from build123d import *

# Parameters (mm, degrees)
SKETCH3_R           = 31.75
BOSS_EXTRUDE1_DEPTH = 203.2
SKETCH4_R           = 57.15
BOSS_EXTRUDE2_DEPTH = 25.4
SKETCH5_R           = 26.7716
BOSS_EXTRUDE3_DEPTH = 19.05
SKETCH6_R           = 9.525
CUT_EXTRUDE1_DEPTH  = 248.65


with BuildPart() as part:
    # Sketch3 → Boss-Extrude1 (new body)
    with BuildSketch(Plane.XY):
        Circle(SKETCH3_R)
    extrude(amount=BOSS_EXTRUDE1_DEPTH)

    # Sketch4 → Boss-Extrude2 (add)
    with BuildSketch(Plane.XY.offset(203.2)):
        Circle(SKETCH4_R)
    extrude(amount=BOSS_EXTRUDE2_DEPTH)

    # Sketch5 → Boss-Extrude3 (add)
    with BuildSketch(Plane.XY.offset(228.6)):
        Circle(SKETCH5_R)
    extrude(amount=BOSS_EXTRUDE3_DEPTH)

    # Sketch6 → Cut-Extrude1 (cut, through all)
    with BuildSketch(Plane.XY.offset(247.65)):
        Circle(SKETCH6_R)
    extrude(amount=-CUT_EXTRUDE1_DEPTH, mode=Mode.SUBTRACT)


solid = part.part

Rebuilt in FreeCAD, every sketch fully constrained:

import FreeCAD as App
import Part
import Sketcher
Q = App.Units.Quantity

doc = App.newDocument("Part")
params = doc.addObject("Spreadsheet::Sheet", "Params")
for row, (alias, value) in enumerate([
    ("sketch1_diameter", "2.5 in"),
    ("pad1_length", "8 in"),
    ("sketch2_diameter", "4.5 in"),
    ("pad2_length", "1 in"),
    ("sketch3_diameter", "2.108 in"),
    ("pad3_length", "0.75 in"),
    ("sketch4_diameter", "0.75 in"),
], start=1):
    params.set(f"A{row}", alias)
    params.set(f"B{row}", "=" + value)
    params.setAlias(f"B{row}", alias)

body = doc.addObject("PartDesign::Body", "Body")

# Sketch on XY plane
sketch1 = body.newObject("Sketcher::SketchObject", "Sketch")
sketch1.AttachmentSupport = (doc.getObject("XY_Plane"), [""])
sketch1.MapMode = "FlatFace"
sketch1.addGeometry(Part.Circle(App.Vector(0, 0, 0), App.Vector(0, 0, 1), 32), False)
sketch1.addConstraint(Sketcher.Constraint("Coincident", 0, 3, -1, 1))
sketch1.addConstraint(Sketcher.Constraint("Diameter", 0, Q("2.5 in")))
sketch1.setExpression("Constraints[1]", "Params.sketch1_diameter")
pad1 = body.newObject("PartDesign::Pad", "Pad")
pad1.Profile = sketch1
pad1.setExpression("Length", "Params.pad1_length")

# Sketch on XY plane
sketch2 = body.newObject("Sketcher::SketchObject", "Sketch001")
sketch2.AttachmentSupport = (doc.getObject("XY_Plane"), [""])
sketch2.MapMode = "FlatFace"
sketch2.AttachmentOffset = App.Placement(App.Vector(0, 0, 8 * 25.4), App.Rotation())
sketch2.addGeometry(Part.Circle(App.Vector(0, 0, 0), App.Vector(0, 0, 1), 57), False)
sketch2.addConstraint(Sketcher.Constraint("Coincident", 0, 3, -1, 1))
sketch2.addConstraint(Sketcher.Constraint("Diameter", 0, Q("4.5 in")))
sketch2.setExpression("Constraints[1]", "Params.sketch2_diameter")
pad2 = body.newObject("PartDesign::Pad", "Pad001")
pad2.Profile = sketch2
pad2.setExpression("Length", "Params.pad2_length")

# Sketch on XY plane
sketch3 = body.newObject("Sketcher::SketchObject", "Sketch002")
sketch3.AttachmentSupport = (doc.getObject("XY_Plane"), [""])
sketch3.MapMode = "FlatFace"
sketch3.AttachmentOffset = App.Placement(App.Vector(0, 0, 9 * 25.4), App.Rotation())
sketch3.addGeometry(Part.Circle(App.Vector(0, 0, 0), App.Vector(0, 0, 1), 27), False)
sketch3.addConstraint(Sketcher.Constraint("Coincident", 0, 3, -1, 1))
sketch3.addConstraint(Sketcher.Constraint("Diameter", 0, Q("2.108 in")))
sketch3.setExpression("Constraints[1]", "Params.sketch3_diameter")
pad3 = body.newObject("PartDesign::Pad", "Pad002")
pad3.Profile = sketch3
pad3.setExpression("Length", "Params.pad3_length")

# Sketch on XY plane
sketch4 = body.newObject("Sketcher::SketchObject", "Sketch003")
sketch4.AttachmentSupport = (doc.getObject("XY_Plane"), [""])
sketch4.MapMode = "FlatFace"
sketch4.AttachmentOffset = App.Placement(App.Vector(0, 0, 9.75 * 25.4), App.Rotation())
sketch4.addGeometry(Part.Circle(App.Vector(0, 0, 0), App.Vector(0, 0, 1), 10), False)
sketch4.addConstraint(Sketcher.Constraint("Coincident", 0, 3, -1, 1))
sketch4.addConstraint(Sketcher.Constraint("Diameter", 0, Q("0.75 in")))
sketch4.setExpression("Constraints[1]", "Params.sketch4_diameter")
pocket1 = body.newObject("PartDesign::Pocket", "Pocket")
pocket1.Profile = sketch4
pocket1.Type = "ThroughAll"

doc.recompute()
